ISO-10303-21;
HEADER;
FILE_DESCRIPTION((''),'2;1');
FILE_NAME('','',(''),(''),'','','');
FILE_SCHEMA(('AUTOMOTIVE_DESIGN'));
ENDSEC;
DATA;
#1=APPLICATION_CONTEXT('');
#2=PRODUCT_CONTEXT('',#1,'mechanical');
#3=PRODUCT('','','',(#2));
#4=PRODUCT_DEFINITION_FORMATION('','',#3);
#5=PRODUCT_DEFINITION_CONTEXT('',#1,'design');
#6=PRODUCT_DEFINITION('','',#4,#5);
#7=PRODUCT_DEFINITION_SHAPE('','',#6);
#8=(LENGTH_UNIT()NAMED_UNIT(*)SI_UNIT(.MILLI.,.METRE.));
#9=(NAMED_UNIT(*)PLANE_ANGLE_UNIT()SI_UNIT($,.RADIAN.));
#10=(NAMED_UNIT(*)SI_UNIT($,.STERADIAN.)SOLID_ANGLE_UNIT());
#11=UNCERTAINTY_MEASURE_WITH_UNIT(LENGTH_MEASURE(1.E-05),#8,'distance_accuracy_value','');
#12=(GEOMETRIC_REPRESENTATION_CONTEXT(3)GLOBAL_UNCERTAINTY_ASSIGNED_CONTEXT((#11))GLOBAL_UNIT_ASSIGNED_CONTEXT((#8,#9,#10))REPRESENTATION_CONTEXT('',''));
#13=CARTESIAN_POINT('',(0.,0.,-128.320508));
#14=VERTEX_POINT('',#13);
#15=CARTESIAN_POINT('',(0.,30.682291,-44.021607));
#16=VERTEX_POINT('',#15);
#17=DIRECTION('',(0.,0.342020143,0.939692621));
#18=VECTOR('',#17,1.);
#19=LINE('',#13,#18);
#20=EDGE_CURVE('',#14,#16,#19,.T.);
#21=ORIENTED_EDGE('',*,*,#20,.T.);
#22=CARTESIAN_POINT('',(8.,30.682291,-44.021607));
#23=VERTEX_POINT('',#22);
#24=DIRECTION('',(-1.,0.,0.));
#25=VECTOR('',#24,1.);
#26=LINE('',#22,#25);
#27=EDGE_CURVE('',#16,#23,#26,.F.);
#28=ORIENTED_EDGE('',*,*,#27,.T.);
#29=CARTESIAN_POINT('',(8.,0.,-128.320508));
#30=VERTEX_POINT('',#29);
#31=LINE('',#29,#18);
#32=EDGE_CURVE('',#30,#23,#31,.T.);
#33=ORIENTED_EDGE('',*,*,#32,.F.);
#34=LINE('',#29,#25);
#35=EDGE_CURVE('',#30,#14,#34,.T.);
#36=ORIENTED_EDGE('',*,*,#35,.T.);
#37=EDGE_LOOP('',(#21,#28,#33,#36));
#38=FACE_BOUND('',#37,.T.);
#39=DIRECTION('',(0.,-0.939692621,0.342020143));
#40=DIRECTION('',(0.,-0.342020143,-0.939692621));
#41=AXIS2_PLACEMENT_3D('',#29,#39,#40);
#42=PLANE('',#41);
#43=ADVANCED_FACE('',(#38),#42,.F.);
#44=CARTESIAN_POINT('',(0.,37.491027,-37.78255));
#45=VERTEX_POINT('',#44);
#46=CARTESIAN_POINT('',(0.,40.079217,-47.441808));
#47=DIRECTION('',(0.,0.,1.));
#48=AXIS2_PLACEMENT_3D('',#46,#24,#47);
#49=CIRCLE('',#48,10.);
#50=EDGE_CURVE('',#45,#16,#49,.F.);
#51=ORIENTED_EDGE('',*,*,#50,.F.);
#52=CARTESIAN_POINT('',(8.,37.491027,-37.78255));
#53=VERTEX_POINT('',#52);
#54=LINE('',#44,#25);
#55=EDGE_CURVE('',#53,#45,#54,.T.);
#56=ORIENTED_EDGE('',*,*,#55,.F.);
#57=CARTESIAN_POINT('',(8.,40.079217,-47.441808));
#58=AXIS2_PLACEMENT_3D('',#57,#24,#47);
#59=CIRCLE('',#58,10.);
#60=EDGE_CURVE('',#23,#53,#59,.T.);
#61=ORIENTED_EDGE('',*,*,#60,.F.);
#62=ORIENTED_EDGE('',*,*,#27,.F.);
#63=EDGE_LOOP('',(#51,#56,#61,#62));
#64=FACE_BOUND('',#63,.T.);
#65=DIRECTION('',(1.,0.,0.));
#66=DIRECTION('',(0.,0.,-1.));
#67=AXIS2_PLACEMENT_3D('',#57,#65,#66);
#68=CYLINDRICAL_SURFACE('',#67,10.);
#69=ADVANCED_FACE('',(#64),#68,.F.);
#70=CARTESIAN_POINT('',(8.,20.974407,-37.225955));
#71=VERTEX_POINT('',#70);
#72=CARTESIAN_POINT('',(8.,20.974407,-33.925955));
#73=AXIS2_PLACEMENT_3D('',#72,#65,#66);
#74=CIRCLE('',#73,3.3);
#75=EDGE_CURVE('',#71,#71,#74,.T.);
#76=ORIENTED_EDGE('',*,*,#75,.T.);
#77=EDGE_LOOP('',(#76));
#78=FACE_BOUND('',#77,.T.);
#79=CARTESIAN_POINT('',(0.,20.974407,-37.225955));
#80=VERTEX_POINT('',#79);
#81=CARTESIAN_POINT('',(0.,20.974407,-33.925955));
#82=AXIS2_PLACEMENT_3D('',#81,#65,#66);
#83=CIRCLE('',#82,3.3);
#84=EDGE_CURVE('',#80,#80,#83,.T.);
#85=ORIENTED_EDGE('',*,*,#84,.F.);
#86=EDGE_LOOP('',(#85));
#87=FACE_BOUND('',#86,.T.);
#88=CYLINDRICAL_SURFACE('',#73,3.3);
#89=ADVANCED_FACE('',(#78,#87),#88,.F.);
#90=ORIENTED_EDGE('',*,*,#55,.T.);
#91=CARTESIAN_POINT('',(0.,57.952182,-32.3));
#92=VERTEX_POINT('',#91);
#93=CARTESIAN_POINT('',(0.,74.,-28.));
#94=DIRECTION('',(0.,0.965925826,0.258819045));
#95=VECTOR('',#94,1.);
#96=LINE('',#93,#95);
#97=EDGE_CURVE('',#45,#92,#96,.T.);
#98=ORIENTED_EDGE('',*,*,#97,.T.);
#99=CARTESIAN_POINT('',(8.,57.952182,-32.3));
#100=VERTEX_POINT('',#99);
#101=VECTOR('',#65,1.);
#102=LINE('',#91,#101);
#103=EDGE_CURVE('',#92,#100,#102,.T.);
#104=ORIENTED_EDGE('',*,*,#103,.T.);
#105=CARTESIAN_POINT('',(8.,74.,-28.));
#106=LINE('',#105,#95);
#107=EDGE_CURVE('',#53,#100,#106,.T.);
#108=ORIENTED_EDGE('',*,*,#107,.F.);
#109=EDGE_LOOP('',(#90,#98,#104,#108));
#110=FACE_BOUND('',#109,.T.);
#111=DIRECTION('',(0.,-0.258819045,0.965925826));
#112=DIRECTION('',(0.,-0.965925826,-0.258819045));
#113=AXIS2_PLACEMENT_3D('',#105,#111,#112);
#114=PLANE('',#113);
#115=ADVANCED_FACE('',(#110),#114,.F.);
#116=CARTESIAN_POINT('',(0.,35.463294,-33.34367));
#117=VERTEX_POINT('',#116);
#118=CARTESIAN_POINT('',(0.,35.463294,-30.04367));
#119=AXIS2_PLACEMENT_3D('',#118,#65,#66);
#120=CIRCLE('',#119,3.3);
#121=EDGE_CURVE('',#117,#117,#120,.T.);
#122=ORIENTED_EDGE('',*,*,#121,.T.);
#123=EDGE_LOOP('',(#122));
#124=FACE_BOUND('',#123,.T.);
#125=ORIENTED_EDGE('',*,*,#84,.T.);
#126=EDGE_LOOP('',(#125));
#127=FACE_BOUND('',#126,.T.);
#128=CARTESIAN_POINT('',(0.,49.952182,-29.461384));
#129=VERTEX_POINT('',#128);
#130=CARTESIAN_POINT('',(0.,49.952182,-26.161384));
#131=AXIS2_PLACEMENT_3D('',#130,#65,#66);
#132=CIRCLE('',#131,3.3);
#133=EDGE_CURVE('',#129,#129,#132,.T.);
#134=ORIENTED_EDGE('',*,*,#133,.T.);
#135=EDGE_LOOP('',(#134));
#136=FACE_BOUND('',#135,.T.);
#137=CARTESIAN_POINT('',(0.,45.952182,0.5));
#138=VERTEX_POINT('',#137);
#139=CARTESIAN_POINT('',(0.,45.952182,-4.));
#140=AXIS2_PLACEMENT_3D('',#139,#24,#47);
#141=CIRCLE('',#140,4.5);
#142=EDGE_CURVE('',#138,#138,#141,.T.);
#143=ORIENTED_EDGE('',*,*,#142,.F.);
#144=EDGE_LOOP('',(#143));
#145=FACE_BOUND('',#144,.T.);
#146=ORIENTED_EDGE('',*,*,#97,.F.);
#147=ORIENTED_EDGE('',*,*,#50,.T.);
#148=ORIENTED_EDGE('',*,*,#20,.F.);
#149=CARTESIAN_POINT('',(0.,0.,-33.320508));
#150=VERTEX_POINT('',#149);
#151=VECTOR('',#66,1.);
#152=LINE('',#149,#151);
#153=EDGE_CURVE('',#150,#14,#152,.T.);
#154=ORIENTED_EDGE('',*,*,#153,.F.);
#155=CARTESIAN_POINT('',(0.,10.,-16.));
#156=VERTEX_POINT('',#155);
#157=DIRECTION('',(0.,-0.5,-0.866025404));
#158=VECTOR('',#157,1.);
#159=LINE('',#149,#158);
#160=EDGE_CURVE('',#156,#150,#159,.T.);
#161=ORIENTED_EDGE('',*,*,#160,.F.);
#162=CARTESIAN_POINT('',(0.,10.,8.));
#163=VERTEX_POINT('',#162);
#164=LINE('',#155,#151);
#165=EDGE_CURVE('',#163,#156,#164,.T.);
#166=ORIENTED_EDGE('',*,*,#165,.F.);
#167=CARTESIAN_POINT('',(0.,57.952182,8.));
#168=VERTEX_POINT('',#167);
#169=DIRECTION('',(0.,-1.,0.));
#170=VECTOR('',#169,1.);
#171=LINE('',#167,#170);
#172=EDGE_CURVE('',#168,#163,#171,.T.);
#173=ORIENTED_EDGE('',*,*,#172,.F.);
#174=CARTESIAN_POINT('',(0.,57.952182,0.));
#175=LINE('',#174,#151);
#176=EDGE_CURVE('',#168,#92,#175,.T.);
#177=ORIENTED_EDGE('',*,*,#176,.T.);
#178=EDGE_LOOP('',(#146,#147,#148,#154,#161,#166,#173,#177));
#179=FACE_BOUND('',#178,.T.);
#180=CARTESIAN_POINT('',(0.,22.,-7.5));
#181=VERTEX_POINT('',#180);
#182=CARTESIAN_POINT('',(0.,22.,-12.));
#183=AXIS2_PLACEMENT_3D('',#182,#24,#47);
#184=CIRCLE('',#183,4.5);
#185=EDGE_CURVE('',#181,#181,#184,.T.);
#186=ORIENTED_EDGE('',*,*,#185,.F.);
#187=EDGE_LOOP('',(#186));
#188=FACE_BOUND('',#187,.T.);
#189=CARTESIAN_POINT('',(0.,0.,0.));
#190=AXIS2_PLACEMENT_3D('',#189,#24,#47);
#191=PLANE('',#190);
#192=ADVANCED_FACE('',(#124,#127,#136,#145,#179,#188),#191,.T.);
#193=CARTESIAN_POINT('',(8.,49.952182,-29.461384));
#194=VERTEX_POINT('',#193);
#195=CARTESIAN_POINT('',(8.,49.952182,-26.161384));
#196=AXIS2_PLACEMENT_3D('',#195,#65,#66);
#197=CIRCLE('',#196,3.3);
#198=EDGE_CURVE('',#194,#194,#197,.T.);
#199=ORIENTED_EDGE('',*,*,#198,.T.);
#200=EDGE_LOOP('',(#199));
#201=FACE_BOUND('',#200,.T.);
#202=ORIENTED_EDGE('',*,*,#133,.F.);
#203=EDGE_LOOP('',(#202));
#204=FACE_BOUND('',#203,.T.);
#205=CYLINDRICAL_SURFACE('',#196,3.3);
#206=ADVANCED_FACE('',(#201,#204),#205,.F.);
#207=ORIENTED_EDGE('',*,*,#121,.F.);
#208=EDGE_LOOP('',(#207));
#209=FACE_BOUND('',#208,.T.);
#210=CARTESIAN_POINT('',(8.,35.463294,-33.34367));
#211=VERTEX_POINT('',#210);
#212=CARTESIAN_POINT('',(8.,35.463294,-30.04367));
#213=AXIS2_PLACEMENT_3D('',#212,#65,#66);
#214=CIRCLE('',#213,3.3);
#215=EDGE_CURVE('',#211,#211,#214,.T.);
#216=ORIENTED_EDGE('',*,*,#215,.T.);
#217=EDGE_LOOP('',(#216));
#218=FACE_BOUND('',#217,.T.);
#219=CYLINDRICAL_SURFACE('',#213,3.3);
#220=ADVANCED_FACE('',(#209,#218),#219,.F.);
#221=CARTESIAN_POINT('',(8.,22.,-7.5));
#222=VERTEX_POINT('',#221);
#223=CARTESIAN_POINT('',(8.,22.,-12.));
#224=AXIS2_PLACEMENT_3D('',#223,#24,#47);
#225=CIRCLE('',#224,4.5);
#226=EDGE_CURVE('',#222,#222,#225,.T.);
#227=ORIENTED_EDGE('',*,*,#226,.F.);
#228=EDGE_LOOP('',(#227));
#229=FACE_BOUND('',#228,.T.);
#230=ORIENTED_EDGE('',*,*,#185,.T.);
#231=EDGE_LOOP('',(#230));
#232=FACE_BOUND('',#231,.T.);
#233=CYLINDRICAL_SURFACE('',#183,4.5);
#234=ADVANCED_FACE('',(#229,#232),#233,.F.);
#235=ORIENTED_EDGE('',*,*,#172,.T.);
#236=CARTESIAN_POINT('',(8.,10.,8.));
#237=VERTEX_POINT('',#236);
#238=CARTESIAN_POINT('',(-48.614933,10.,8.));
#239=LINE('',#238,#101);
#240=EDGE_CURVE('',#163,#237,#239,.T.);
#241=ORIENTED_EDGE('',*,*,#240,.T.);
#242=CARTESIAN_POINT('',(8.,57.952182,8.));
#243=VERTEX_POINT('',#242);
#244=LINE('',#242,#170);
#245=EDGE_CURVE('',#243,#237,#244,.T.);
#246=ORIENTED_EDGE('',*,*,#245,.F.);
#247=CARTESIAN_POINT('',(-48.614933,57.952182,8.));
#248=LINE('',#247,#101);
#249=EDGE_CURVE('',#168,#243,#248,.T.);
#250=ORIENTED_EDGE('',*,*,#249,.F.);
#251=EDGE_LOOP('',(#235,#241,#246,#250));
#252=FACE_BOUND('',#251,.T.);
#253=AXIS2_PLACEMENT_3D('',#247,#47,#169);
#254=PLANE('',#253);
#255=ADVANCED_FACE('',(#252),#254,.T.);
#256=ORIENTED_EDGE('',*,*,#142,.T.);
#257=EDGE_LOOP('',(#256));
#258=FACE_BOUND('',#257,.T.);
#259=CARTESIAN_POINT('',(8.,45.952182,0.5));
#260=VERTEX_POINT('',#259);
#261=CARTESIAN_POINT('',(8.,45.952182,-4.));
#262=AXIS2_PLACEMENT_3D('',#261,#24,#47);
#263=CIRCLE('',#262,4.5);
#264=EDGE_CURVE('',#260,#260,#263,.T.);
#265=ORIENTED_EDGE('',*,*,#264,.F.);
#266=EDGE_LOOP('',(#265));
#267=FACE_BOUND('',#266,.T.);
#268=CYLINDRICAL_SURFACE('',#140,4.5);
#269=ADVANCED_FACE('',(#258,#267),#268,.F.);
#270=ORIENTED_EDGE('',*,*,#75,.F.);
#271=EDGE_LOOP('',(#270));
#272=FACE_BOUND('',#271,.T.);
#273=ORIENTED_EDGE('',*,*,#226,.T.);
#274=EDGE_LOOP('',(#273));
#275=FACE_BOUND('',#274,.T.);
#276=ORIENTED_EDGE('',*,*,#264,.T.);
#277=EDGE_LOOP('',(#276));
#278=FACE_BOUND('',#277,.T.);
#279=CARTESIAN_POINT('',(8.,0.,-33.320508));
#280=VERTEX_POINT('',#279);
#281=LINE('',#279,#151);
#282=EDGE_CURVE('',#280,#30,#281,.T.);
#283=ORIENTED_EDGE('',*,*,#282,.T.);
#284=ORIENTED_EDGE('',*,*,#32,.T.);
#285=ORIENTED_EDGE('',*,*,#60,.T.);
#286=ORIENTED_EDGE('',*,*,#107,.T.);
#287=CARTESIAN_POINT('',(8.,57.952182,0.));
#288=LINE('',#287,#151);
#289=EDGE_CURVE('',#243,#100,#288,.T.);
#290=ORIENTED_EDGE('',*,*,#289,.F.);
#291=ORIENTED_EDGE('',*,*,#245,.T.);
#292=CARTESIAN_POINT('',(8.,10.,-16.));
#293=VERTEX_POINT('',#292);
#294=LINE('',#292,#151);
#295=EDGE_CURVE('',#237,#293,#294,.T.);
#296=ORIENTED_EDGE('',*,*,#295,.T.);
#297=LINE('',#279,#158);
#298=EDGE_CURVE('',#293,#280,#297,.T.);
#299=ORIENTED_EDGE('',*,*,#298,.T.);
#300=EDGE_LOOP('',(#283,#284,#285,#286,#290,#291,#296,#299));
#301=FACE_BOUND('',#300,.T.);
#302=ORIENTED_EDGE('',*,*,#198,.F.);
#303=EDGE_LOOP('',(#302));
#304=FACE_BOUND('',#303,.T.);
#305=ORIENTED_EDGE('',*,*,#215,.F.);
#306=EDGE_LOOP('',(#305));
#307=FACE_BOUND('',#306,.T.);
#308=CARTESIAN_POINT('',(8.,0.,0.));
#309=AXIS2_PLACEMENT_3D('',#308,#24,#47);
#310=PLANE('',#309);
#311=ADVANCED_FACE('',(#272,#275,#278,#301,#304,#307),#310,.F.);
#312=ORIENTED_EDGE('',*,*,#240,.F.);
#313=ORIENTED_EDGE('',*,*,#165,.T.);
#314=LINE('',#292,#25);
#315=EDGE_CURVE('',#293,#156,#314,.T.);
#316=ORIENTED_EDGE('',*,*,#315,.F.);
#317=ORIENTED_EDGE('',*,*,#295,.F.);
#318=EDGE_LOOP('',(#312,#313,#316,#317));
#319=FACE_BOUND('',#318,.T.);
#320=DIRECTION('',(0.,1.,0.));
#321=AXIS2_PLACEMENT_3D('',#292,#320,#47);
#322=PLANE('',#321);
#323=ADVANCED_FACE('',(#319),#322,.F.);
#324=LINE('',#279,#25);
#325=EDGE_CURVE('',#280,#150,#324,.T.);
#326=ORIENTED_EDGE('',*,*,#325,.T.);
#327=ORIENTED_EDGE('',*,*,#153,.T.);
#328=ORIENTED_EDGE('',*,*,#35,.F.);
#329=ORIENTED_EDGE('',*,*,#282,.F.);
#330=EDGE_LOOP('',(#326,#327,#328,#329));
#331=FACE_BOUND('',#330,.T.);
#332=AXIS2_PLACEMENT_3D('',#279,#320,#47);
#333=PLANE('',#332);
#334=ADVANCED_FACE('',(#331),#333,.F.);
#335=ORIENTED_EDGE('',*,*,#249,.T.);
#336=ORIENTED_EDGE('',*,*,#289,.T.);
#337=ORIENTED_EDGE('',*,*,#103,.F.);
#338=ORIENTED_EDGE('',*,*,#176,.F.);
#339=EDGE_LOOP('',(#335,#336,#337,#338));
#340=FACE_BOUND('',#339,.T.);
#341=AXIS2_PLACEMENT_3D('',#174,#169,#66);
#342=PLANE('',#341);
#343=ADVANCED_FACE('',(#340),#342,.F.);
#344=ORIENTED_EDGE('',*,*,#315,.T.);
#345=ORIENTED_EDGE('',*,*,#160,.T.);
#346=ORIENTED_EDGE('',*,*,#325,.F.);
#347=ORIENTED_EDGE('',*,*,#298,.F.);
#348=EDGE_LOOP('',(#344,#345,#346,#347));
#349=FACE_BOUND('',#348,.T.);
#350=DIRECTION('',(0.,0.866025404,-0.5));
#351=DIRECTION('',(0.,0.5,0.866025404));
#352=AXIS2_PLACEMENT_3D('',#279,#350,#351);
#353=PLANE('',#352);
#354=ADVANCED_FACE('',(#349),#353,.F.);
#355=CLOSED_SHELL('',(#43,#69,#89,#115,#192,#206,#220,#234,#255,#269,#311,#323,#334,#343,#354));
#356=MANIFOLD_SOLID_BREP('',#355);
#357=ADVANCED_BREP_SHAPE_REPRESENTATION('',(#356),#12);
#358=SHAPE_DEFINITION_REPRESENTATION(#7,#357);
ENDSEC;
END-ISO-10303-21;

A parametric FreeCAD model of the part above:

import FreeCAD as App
import Part
import Sketcher
Q = App.Units.Quantity


def edges_at(feature, points):
    """Names of the edges that pass closest to the given points."""
    edges = feature.Shape.Edges
    near = lambda p: min(range(len(edges)), key=lambda i: edges[i].distToShape(Part.Vertex(*p))[0])
    return sorted({f"Edge{near(p) + 1}" for p in points})


def add_polygon(sketch, points):
    """Adds a closed chain of lines whose ends are joined by coincident constraints."""
    first, n = sketch.GeometryCount, len(points)
    for a, b in zip(points, points[1:] + points[:1]):
        sketch.addGeometry(Part.LineSegment(App.Vector(*a, 0), App.Vector(*b, 0)), False)
    for i in range(n):
        sketch.addConstraint(Sketcher.Constraint("Coincident", first + i, 2, first + (i + 1) % n, 1))

doc = App.newDocument("Part")
params = doc.addObject("Spreadsheet::Sheet", "Params")
for row, (alias, value) in enumerate([
    ("sketch1_width", "64 mm"),
    ("sketch1_height", "28 mm"),
    ("sketch1_height2", "16 mm"),
    ("sketch1_height3", "95 mm"),
    ("sketch1_length", "20 mm"),
    ("pad1_length", "8 mm"),
    ("sketch2_height", "32.3 mm"),
    ("sketch3_height", "8 mm"),
    ("pad2_length", "8 mm"),
    ("sketch4_diameter", "9 mm"),
    ("hole_diameter", "9 mm"),
    ("sketch5_diameter", "6.6 mm"),
    ("hole2_diameter", "6.6 mm"),
    ("fillet_radius", "10 mm"),
], start=1):
    params.set(f"A{row}", alias)
    params.set(f"B{row}", "=" + value)
    params.setAlias(f"B{row}", alias)

body = doc.addObject("PartDesign::Body", "Body")

# Sketch on YZ plane
sketch1 = body.newObject("Sketcher::SketchObject", "Sketch")
sketch1.AttachmentSupport = (doc.getObject("YZ_Plane"), [""])
sketch1.MapMode = "FlatFace"
add_polygon(sketch1, [(32.462735, -39.129877), (74, -28), (74, 0), (10, 0), (10, -16), (0, -33.320508), (0, -128.320508)])  # lines 0-6
sketch1.addConstraint([
    Sketcher.Constraint("Vertical", 1),
    Sketcher.Constraint("Horizontal", 2),
    Sketcher.Constraint("Vertical", 3),
    Sketcher.Constraint("Vertical", 5),
    Sketcher.Constraint("PointOnObject", 1, 2, -1),
    Sketcher.Constraint("PointOnObject", 4, 2, -2),
    Sketcher.Constraint("DistanceX", 2, 2, 2, 1, Q("64 mm")),
    Sketcher.Constraint("DistanceY", 1, 1, 1, 2, Q("28 mm")),
    Sketcher.Constraint("DistanceY", 3, 2, 3, 1, Q("16 mm")),
    Sketcher.Constraint("DistanceY", 5, 2, 5, 1, Q("95 mm")),
    Sketcher.Constraint("Angle", 0, Q("15 deg")),
    Sketcher.Constraint("Angle", 4, Q("-120 deg")),
    Sketcher.Constraint("Angle", 6, Q("70 deg")),
    Sketcher.Constraint("Distance", 4, Q("20 mm")),
])
sketch1.setExpression("Constraints[13]", "Params.sketch1_width")
sketch1.setExpression("Constraints[14]", "Params.sketch1_height")
sketch1.setExpression("Constraints[15]", "Params.sketch1_height2")
sketch1.setExpression("Constraints[16]", "Params.sketch1_height3")
sketch1.setExpression("Constraints[20]", "Params.sketch1_length")
pad1 = body.newObject("PartDesign::Pad", "Pad")
pad1.Profile = sketch1
pad1.setExpression("Length", "Params.pad1_length")

# Sketch on YZ plane
sketch2 = body.newObject("Sketcher::SketchObject", "Sketch001")
sketch2.AttachmentSupport = (doc.getObject("YZ_Plane"), [""])
sketch2.MapMode = "FlatFace"
sketch2.AttachmentOffset = App.Placement(App.Vector(0, 0, 8), App.Rotation())
add_polygon(sketch2, [(74, 0), (57.952182, 0), (57.952182, -32.3), (74, -32.3)])  # lines 0-3
sketch2.addConstraint([
    Sketcher.Constraint("Horizontal", 0),
    Sketcher.Constraint("Vertical", 1),
    Sketcher.Constraint("Horizontal", 2),
    Sketcher.Constraint("Vertical", 3),
    Sketcher.Constraint("PointOnObject", 0, 2, -1),
    Sketcher.Constraint("DistanceY", 1, 2, 1, 1, Q("32.3 mm")),
    Sketcher.Constraint("DistanceX", -1, 1, 2, 2, Q("74 mm")),
    Sketcher.Constraint("DistanceX", 0, 2, 0, 1, Q("16.047818 mm")),
])
sketch2.setExpression("Constraints[9]", "Params.sketch2_height")
pocket1 = body.newObject("PartDesign::Pocket", "Pocket")
pocket1.Profile = sketch2
pocket1.Type = "ThroughAll"

# Sketch on YZ plane
sketch3 = body.newObject("Sketcher::SketchObject", "Sketch002")
sketch3.AttachmentSupport = (doc.getObject("YZ_Plane"), [""])
sketch3.MapMode = "FlatFace"
sketch3.AttachmentOffset = App.Placement(App.Vector(0, 0, 8), App.Rotation())
add_polygon(sketch3, [(57.952182, 8), (10, 8), (10, 0), (57.952182, 0)])  # lines 0-3
sketch3.addConstraint([
    Sketcher.Constraint("Horizontal", 0),
    Sketcher.Constraint("Vertical", 1),
    Sketcher.Constraint("Horizontal", 2),
    Sketcher.Constraint("Vertical", 3),
    Sketcher.Constraint("PointOnObject", 1, 2, -1),
    Sketcher.Constraint("DistanceY", 1, 2, 1, 1, Q("8 mm")),
    Sketcher.Constraint("DistanceX", -1, 1, 0, 2, Q("10 mm")),
    Sketcher.Constraint("DistanceX", 0, 2, 0, 1, Q("47.952182 mm")),
])
sketch3.setExpression("Constraints[9]", "Params.sketch3_height")
pad2 = body.newObject("PartDesign::Pad", "Pad001")
pad2.Profile = sketch3
pad2.setExpression("Length", "Params.pad2_length")
pad2.Reversed = True

# Sketch on YZ plane
sketch4 = body.newObject("Sketcher::SketchObject", "Sketch003")
sketch4.AttachmentSupport = (doc.getObject("YZ_Plane"), [""])
sketch4.MapMode = "FlatFace"
sketch4.addGeometry([
    Part.Circle(App.Vector(45.952182, -4, 0), App.Vector(0, 0, 1), 4.5),
    Part.Circle(App.Vector(22, -12, 0), App.Vector(0, 0, 1), 4.5),
], False)
sketch4.addConstraint([
    Sketcher.Constraint("Equal", 0, 1),
    Sketcher.Constraint("Diameter", 0, Q("9 mm")),
    Sketcher.Constraint("DistanceY", 0, 3, -1, 1, Q("4 mm")),
    Sketcher.Constraint("DistanceX", -1, 1, 1, 3, Q("22 mm")),
    Sketcher.Constraint("DistanceY", 1, 3, -1, 1, Q("12 mm")),
    Sketcher.Constraint("DistanceX", -1, 1, 0, 3, Q("45.952182 mm")),
])
sketch4.setExpression("Constraints[1]", "Params.sketch4_diameter")
doc.recompute()
hole = body.newObject("PartDesign::Hole", "Hole")
hole.Profile = sketch4
hole.ThreadType = "None"
hole.setExpression("Diameter", "Params.hole_diameter")
hole.DepthType = "ThroughAll"
hole.Reversed = True

# Sketch on YZ plane
sketch5 = body.newObject("Sketcher::SketchObject", "Sketch004")
sketch5.AttachmentSupport = (doc.getObject("YZ_Plane"), [""])
sketch5.MapMode = "FlatFace"
sketch5.AttachmentOffset = App.Placement(App.Vector(0, 0, 8), App.Rotation())
sketch5.addGeometry([
    Part.Circle(App.Vector(49.952182, -26.161384, 0), App.Vector(0, 0, 1), 3.3),
    Part.Circle(App.Vector(35.463294, -30.04367, 0), App.Vector(0, 0, 1), 3.3),
    Part.Circle(App.Vector(20.974407, -33.925955, 0), App.Vector(0, 0, 1), 3.3),
], False)
sketch5.addConstraint([
    Sketcher.Constraint("Equal", 0, 1),
    Sketcher.Constraint("Equal", 1, 2),
    Sketcher.Constraint("Diameter", 0, Q("6.6 mm")),
    Sketcher.Constraint("DistanceX", -1, 1, 0, 3, Q("49.952182 mm")),
    Sketcher.Constraint("DistanceY", 1, 3, -1, 1, Q("30.04367 mm")),
    Sketcher.Constraint("DistanceY", 2, 3, 0, 3, Q("7.764571 mm")),
    Sketcher.Constraint("DistanceY", 0, 3, -1, 1, Q("26.161384 mm")),
    Sketcher.Constraint("DistanceX", -1, 1, 1, 3, Q("35.463294 mm")),
    Sketcher.Constraint("DistanceX", -1, 1, 2, 3, Q("20.974407 mm")),
])
sketch5.setExpression("Constraints[2]", "Params.sketch5_diameter")
doc.recompute()
hole2 = body.newObject("PartDesign::Hole", "Hole001")
hole2.Profile = sketch5
hole2.ThreadType = "None"
hole2.setExpression("Diameter", "Params.hole2_diameter")
hole2.DepthType = "ThroughAll"
doc.recompute()

fillet = body.newObject("PartDesign::Fillet", "Fillet")
fillet.Base = (hole2, edges_at(hole2, [(4, 32.463, -39.13)]))
fillet.setExpression("Radius", "Params.fillet_radius")

doc.recompute()
